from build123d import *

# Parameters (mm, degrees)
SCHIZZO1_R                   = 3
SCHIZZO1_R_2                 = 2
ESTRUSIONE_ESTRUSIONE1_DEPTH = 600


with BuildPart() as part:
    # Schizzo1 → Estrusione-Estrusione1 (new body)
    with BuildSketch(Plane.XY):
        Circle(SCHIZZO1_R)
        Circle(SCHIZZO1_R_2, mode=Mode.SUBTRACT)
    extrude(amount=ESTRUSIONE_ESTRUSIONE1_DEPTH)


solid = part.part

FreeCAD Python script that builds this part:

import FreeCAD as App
import Part
import Sketcher

V = App.Vector

doc = App.newDocument("Part")
params = doc.addObject("Spreadsheet::Sheet", "Params")
for row, (alias, value) in enumerate([
    ("sketch1_diameter", "6 mm"),
    ("sketch1_diameter2", "4 mm"),
    ("pad1_length", "600 mm"),
], start=1):
    params.set(f"A{row}", alias)
    params.set(f"B{row}", "=" + value)
    params.setAlias(f"B{row}", alias)

body = doc.addObject("PartDesign::Body", "Body")

sketch1 = body.newObject("Sketcher::SketchObject", "Sketch")
sketch1.AttachmentSupport = (doc.getObject("XY_Plane"), [""])
sketch1.MapMode = "FlatFace"
sketch1.addGeometry([
    Part.Circle(V(0, 0, 0), V(0, 0, 1), 3),
    Part.Circle(V(0, 0, 0), V(0, 0, 1), 2),
], False)
sketch1.addConstraint([
    Sketcher.Constraint("Coincident", 0, 3, -1, 1),
    Sketcher.Constraint("Coincident", 1, 3, -1, 1),
    Sketcher.Constraint("Diameter", 0, 6.0),
    Sketcher.Constraint("Diameter", 1, 4.0),
])
sketch1.setExpression("Constraints[2]", "Params.sketch1_diameter")
sketch1.setExpression("Constraints[3]", "Params.sketch1_diameter2")
pad1 = body.newObject("PartDesign::Pad", "Pad")
pad1.Profile = sketch1
pad1.setExpression("Length", "Params.pad1_length")

doc.recompute()
